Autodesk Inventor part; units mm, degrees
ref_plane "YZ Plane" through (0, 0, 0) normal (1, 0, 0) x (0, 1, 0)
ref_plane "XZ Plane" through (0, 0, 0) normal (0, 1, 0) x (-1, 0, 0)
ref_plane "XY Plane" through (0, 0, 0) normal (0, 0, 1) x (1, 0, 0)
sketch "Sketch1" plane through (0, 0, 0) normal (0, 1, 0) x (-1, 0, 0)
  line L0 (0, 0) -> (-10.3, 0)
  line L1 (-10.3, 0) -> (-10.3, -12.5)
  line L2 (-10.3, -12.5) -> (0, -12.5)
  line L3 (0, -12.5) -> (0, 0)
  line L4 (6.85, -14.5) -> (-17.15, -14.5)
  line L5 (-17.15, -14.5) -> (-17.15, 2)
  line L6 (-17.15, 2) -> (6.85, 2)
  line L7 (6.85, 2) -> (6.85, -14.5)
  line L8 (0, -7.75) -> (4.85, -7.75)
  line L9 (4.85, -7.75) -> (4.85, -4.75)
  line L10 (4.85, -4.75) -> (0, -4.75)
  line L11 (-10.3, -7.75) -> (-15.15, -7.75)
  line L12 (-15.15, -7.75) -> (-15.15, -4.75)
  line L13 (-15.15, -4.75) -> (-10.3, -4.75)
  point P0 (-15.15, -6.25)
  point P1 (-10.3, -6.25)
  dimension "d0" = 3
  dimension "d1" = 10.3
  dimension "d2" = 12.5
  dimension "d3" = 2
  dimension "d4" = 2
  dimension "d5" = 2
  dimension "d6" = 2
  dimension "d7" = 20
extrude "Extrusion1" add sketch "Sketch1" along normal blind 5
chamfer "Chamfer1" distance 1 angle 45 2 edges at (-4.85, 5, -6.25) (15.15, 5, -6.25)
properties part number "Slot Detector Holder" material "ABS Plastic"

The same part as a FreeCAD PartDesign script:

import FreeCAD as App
import Part
import Sketcher
from FreeCAD import Vector


def edges_at(feature, points):
    """Names of the edges that pass closest to the given points."""
    edges = feature.Shape.Edges
    near = lambda p: min(range(len(edges)), key=lambda i: edges[i].distToShape(Part.Vertex(*p))[0])
    return sorted({f"Edge{near(p) + 1}" for p in points})


def add_polygon(sketch, points):
    """Adds a closed chain of lines whose ends are joined by coincident constraints."""
    first, n = sketch.GeometryCount, len(points)
    for a, b in zip(points, points[1:] + points[:1]):
        sketch.addGeometry(Part.LineSegment(App.Vector(*a, 0), App.Vector(*b, 0)), False)
    for i in range(n):
        sketch.addConstraint(Sketcher.Constraint("Coincident", first + i, 2, first + (i + 1) % n, 1))

doc = App.newDocument("Part")
params = doc.addObject("Spreadsheet::Sheet", "Params")
for row, (alias, value) in enumerate([
    ("sketch1_height", "3 mm"),
    ("sketch1_width", "10.3 mm"),
    ("sketch1_width2", "24 mm"),
    ("pad1_length", "5 mm"),
    ("chamfer_size", "1 mm"),
], start=1):
    params.set(f"A{row}", alias)
    params.set(f"B{row}", "=" + value)
    params.setAlias(f"B{row}", alias)

body = doc.addObject("PartDesign::Body", "Body")

# Sketch on XZ plane
sketch1 = body.newObject("Sketcher::SketchObject", "Sketch")
sketch1.AttachmentSupport = (doc.getObject("XZ_Plane"), [""])
sketch1.MapMode = "FlatFace"
add_polygon(sketch1, [(17.15, -14.5), (-6.85, -14.5), (-6.85, 2), (17.15, 2)])  # lines 0-3
add_polygon(sketch1, [(10.3, 0), (0, 0), (0, -4.75), (-4.85, -4.75), (-4.85, -7.75), (0, -7.75), (0, -12.5), (10.3, -12.5), (10.3, -7.75), (15.15, -7.75), (15.15, -4.75), (10.3, -4.75)])  # lines 4-15
sketch1.addConstraint([
    Sketcher.Constraint("Horizontal", 0),
    Sketcher.Constraint("Vertical", 1),
    Sketcher.Constraint("Horizontal", 2),
    Sketcher.Constraint("Vertical", 3),
    Sketcher.Constraint("Horizontal", 4),
    Sketcher.Constraint("Vertical", 5),
    Sketcher.Constraint("Horizontal", 6),
    Sketcher.Constraint("Vertical", 7),
    Sketcher.Constraint("Horizontal", 8),
    Sketcher.Constraint("Vertical", 9),
    Sketcher.Constraint("Horizontal", 10),
    Sketcher.Constraint("Vertical", 11),
    Sketcher.Constraint("Horizontal", 12),
    Sketcher.Constraint("Vertical", 13),
    Sketcher.Constraint("Horizontal", 14),
    Sketcher.Constraint("Vertical", 15),
    Sketcher.Constraint("Coincident", 4, 2, -1, 1),
    Sketcher.Constraint("PointOnObject", 8, 2, -2),
    Sketcher.Constraint("Horizontal", 8, 2, 11, 2),
    Sketcher.Constraint("Horizontal", 6, 2, 13, 2),
    Sketcher.Constraint("Vertical", 11, 2, 14, 2),
    Sketcher.Constraint("Equal", 8, 12),
    Sketcher.Constraint("Equal", 5, 9),
    Sketcher.Constraint("DistanceY", 7, 2, 7, 1, 3.0),
    Sketcher.Constraint("DistanceX", 4, 2, 4, 1, 10.3),
    Sketcher.Constraint("DistanceY", -1, 1, 1, 2, 2.0),
    Sketcher.Constraint("DistanceX", 1, 2, 6, 2, 2.0),
    Sketcher.Constraint("DistanceY", 0, 2, 9, 2, 2.0),
    Sketcher.Constraint("DistanceX", 12, 2, 3, 2, 2.0),
    Sketcher.Constraint("DistanceY", 9, 2, -1, 1, 12.5),
    Sketcher.Constraint("DistanceX", 0, 2, 0, 1, 24.0),
])
sketch1.setExpression("Constraints[39]", "Params.sketch1_height")
sketch1.setExpression("Constraints[40]", "Params.sketch1_width")
sketch1.setExpression("Constraints[46]", "Params.sketch1_width2")
pad1 = body.newObject("PartDesign::Pad", "Pad")
pad1.Profile = sketch1
pad1.setExpression("Length", "Params.pad1_length")
pad1.Reversed = True
doc.recompute()

chamfer = body.newObject("PartDesign::Chamfer", "Chamfer")
chamfer.Base = (pad1, edges_at(pad1, [(-4.85, 5, -6.25), (15.15, 5, -6.25)]))
chamfer.setExpression("Size", "Params.chamfer_size")

doc.recompute()
